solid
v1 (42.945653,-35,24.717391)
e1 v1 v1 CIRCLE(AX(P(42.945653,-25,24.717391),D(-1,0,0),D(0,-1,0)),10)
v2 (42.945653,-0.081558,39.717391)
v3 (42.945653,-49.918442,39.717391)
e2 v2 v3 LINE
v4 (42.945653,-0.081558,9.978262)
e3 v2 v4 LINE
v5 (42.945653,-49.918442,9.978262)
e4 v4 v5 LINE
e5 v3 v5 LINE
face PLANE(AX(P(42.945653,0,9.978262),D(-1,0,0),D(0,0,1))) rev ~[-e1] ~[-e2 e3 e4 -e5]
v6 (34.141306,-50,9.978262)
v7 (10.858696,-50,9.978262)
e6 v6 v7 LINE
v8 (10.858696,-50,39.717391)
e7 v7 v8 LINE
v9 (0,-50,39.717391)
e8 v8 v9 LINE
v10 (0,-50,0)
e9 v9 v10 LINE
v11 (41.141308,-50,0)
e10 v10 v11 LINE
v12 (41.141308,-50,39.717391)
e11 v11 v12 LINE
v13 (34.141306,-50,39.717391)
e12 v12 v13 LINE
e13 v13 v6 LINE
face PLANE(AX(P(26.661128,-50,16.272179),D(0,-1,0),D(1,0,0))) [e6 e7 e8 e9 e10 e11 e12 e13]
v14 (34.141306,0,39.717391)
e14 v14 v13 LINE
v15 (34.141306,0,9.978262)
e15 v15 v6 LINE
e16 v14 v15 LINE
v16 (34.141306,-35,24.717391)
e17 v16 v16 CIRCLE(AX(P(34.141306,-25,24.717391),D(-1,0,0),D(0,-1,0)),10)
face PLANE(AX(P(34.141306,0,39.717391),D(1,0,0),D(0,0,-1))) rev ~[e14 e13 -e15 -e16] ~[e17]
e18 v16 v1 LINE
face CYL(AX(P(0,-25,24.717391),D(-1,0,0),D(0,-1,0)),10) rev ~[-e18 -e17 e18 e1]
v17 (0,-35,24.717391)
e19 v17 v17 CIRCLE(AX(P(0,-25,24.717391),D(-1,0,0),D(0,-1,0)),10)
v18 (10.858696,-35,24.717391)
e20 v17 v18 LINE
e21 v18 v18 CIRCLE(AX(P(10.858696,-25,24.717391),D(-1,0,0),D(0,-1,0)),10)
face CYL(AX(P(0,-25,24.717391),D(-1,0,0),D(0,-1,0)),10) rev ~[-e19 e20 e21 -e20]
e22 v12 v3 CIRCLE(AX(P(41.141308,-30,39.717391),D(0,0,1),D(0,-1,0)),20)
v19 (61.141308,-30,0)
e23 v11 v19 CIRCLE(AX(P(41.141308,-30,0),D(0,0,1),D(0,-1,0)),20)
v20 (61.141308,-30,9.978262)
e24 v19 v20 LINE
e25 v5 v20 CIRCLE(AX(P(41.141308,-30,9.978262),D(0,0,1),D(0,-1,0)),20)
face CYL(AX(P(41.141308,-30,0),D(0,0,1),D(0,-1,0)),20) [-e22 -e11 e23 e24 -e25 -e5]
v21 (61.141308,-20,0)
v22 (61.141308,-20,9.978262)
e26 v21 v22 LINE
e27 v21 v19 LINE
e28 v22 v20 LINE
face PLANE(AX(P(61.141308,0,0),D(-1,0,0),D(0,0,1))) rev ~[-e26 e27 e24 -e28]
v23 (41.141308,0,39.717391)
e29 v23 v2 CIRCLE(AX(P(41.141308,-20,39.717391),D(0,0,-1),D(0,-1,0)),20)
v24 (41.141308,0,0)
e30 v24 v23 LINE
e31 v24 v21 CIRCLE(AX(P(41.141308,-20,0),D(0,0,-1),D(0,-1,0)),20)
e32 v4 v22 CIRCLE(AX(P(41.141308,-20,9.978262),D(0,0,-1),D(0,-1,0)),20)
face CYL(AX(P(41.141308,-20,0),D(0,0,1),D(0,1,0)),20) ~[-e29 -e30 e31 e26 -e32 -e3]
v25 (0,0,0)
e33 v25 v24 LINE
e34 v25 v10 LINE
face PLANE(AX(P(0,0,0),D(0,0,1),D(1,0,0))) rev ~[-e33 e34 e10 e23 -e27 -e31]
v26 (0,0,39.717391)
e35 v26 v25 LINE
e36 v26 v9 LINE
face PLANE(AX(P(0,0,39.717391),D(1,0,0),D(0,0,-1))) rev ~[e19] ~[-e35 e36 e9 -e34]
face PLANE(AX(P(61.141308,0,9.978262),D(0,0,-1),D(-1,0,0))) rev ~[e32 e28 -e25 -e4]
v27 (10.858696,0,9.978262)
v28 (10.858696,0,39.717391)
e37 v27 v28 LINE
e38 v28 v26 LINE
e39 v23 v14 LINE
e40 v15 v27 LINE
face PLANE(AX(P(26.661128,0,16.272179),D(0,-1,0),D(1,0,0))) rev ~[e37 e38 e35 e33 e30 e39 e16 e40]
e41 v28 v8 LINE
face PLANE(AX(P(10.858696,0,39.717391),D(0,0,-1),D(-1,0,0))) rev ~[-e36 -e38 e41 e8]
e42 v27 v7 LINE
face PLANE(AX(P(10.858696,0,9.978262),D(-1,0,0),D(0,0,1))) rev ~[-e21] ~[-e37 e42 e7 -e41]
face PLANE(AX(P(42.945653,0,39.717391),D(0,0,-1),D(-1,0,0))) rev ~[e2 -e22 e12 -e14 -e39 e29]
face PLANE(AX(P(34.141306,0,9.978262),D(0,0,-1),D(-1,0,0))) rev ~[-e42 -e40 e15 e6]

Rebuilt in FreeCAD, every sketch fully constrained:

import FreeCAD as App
import Part
import Sketcher
from FreeCAD import Vector


def edges_at(feature, points):
    """Names of the edges that pass closest to the given points."""
    edges = feature.Shape.Edges
    near = lambda p: min(range(len(edges)), key=lambda i: edges[i].distToShape(Part.Vertex(*p))[0])
    return sorted({f"Edge{near(p) + 1}" for p in points})

doc = App.newDocument("Part")
body = doc.addObject("PartDesign::Body", "Body")

sketch1 = body.newObject("Sketcher::SketchObject", "Sketch")
sketch1.AttachmentSupport = (doc.getObject("XZ_Plane"), [""])
sketch1.MapMode = "FlatFace"
sketch1.addGeometry([
    Part.LineSegment(Vector(0, 39.717391, 0), Vector(0, 0, 0)),
    Part.LineSegment(Vector(0, 0, 0), Vector(61.141308, 0, 0)),
    Part.LineSegment(Vector(61.141308, 0, 0), Vector(61.141308, 9.978262, 0)),
    Part.LineSegment(Vector(61.141308, 9.978262, 0), Vector(42.945653, 9.978262, 0)),
    Part.LineSegment(Vector(42.945653, 9.978262, 0), Vector(42.945653, 39.717391, 0)),
    Part.LineSegment(Vector(42.945653, 39.717391, 0), Vector(34.141306, 39.717391, 0)),
    Part.LineSegment(Vector(34.141306, 39.717391, 0), Vector(34.141306, 9.978262, 0)),
    Part.LineSegment(Vector(34.141306, 9.978262, 0), Vector(10.858696, 9.978262, 0)),
    Part.LineSegment(Vector(10.858696, 9.978262, 0), Vector(10.858696, 39.717391, 0)),
    Part.LineSegment(Vector(10.858696, 39.717391, 0), Vector(0, 39.717391, 0)),
], False)
sketch1.addConstraint([
    Sketcher.Constraint("Coincident", 0, 2, 1, 1),
    Sketcher.Constraint("Coincident", 1, 2, 2, 1),
    Sketcher.Constraint("Coincident", 2, 2, 3, 1),
    Sketcher.Constraint("Coincident", 3, 2, 4, 1),
    Sketcher.Constraint("Coincident", 4, 2, 5, 1),
    Sketcher.Constraint("Coincident", 5, 2, 6, 1),
    Sketcher.Constraint("Coincident", 6, 2, 7, 1),
    Sketcher.Constraint("Coincident", 7, 2, 8, 1),
    Sketcher.Constraint("Coincident", 8, 2, 9, 1),
    Sketcher.Constraint("Coincident", 9, 2, 0, 1),
    Sketcher.Constraint("Vertical", 0),
    Sketcher.Constraint("Horizontal", 1),
    Sketcher.Constraint("Vertical", 2),
    Sketcher.Constraint("Horizontal", 3),
    Sketcher.Constraint("Vertical", 4),
    Sketcher.Constraint("Horizontal", 5),
    Sketcher.Constraint("Vertical", 6),
    Sketcher.Constraint("Horizontal", 7),
    Sketcher.Constraint("Vertical", 8),
    Sketcher.Constraint("Horizontal", 9),
    Sketcher.Constraint("Coincident", 0, 2, -1, 1),
    Sketcher.Constraint("Horizontal", 3, 2, 6, 2),
    Sketcher.Constraint("Horizontal", 5, 2, 8, 2),
    Sketcher.Constraint("DistanceX", 1, 1, 1, 2, 61.141308),
    Sketcher.Constraint("DistanceX", 7, 2, 7, 1, 23.28261),
    Sketcher.Constraint("DistanceY", 0, 2, 0, 1, 39.717391),
    Sketcher.Constraint("DistanceY", 4, 1, 4, 2, 29.739129),
    Sketcher.Constraint("DistanceX", 3, 2, 3, 1, 18.195655),
    Sketcher.Constraint("DistanceX", 5, 2, 5, 1, 8.804347),
])
pad1 = body.newObject("PartDesign::Pad", "Pad")
pad1.Profile = sketch1
pad1.Length = 50

sketch2 = body.newObject("Sketcher::SketchObject", "Sketch001")
sketch2.AttachmentSupport = (doc.getObject("YZ_Plane"), [""])
sketch2.MapMode = "FlatFace"
sketch2.addGeometry(Part.Circle(Vector(-25, 24.717391, 0), Vector(0, 0, 1), 10), False)
sketch2.addConstraint([
    Sketcher.Constraint("Diameter", 0, 20.0),
    Sketcher.Constraint("DistanceX", 0, 3, -1, 1, 25.0),
    Sketcher.Constraint("DistanceY", -1, 1, 0, 3, 24.717391),
])
pocket1 = body.newObject("PartDesign::Pocket", "Pocket")
pocket1.Profile = sketch2
pocket1.Type = "ThroughAll"
pocket1.Reversed = True
doc.recompute()

fillet = body.newObject("PartDesign::Fillet", "Fillet")
fillet.Base = (pocket1, edges_at(pocket1, [(61.141, 0, 4.989), (61.141, -50, 4.989)]))
fillet.Radius = 20

doc.recompute()
